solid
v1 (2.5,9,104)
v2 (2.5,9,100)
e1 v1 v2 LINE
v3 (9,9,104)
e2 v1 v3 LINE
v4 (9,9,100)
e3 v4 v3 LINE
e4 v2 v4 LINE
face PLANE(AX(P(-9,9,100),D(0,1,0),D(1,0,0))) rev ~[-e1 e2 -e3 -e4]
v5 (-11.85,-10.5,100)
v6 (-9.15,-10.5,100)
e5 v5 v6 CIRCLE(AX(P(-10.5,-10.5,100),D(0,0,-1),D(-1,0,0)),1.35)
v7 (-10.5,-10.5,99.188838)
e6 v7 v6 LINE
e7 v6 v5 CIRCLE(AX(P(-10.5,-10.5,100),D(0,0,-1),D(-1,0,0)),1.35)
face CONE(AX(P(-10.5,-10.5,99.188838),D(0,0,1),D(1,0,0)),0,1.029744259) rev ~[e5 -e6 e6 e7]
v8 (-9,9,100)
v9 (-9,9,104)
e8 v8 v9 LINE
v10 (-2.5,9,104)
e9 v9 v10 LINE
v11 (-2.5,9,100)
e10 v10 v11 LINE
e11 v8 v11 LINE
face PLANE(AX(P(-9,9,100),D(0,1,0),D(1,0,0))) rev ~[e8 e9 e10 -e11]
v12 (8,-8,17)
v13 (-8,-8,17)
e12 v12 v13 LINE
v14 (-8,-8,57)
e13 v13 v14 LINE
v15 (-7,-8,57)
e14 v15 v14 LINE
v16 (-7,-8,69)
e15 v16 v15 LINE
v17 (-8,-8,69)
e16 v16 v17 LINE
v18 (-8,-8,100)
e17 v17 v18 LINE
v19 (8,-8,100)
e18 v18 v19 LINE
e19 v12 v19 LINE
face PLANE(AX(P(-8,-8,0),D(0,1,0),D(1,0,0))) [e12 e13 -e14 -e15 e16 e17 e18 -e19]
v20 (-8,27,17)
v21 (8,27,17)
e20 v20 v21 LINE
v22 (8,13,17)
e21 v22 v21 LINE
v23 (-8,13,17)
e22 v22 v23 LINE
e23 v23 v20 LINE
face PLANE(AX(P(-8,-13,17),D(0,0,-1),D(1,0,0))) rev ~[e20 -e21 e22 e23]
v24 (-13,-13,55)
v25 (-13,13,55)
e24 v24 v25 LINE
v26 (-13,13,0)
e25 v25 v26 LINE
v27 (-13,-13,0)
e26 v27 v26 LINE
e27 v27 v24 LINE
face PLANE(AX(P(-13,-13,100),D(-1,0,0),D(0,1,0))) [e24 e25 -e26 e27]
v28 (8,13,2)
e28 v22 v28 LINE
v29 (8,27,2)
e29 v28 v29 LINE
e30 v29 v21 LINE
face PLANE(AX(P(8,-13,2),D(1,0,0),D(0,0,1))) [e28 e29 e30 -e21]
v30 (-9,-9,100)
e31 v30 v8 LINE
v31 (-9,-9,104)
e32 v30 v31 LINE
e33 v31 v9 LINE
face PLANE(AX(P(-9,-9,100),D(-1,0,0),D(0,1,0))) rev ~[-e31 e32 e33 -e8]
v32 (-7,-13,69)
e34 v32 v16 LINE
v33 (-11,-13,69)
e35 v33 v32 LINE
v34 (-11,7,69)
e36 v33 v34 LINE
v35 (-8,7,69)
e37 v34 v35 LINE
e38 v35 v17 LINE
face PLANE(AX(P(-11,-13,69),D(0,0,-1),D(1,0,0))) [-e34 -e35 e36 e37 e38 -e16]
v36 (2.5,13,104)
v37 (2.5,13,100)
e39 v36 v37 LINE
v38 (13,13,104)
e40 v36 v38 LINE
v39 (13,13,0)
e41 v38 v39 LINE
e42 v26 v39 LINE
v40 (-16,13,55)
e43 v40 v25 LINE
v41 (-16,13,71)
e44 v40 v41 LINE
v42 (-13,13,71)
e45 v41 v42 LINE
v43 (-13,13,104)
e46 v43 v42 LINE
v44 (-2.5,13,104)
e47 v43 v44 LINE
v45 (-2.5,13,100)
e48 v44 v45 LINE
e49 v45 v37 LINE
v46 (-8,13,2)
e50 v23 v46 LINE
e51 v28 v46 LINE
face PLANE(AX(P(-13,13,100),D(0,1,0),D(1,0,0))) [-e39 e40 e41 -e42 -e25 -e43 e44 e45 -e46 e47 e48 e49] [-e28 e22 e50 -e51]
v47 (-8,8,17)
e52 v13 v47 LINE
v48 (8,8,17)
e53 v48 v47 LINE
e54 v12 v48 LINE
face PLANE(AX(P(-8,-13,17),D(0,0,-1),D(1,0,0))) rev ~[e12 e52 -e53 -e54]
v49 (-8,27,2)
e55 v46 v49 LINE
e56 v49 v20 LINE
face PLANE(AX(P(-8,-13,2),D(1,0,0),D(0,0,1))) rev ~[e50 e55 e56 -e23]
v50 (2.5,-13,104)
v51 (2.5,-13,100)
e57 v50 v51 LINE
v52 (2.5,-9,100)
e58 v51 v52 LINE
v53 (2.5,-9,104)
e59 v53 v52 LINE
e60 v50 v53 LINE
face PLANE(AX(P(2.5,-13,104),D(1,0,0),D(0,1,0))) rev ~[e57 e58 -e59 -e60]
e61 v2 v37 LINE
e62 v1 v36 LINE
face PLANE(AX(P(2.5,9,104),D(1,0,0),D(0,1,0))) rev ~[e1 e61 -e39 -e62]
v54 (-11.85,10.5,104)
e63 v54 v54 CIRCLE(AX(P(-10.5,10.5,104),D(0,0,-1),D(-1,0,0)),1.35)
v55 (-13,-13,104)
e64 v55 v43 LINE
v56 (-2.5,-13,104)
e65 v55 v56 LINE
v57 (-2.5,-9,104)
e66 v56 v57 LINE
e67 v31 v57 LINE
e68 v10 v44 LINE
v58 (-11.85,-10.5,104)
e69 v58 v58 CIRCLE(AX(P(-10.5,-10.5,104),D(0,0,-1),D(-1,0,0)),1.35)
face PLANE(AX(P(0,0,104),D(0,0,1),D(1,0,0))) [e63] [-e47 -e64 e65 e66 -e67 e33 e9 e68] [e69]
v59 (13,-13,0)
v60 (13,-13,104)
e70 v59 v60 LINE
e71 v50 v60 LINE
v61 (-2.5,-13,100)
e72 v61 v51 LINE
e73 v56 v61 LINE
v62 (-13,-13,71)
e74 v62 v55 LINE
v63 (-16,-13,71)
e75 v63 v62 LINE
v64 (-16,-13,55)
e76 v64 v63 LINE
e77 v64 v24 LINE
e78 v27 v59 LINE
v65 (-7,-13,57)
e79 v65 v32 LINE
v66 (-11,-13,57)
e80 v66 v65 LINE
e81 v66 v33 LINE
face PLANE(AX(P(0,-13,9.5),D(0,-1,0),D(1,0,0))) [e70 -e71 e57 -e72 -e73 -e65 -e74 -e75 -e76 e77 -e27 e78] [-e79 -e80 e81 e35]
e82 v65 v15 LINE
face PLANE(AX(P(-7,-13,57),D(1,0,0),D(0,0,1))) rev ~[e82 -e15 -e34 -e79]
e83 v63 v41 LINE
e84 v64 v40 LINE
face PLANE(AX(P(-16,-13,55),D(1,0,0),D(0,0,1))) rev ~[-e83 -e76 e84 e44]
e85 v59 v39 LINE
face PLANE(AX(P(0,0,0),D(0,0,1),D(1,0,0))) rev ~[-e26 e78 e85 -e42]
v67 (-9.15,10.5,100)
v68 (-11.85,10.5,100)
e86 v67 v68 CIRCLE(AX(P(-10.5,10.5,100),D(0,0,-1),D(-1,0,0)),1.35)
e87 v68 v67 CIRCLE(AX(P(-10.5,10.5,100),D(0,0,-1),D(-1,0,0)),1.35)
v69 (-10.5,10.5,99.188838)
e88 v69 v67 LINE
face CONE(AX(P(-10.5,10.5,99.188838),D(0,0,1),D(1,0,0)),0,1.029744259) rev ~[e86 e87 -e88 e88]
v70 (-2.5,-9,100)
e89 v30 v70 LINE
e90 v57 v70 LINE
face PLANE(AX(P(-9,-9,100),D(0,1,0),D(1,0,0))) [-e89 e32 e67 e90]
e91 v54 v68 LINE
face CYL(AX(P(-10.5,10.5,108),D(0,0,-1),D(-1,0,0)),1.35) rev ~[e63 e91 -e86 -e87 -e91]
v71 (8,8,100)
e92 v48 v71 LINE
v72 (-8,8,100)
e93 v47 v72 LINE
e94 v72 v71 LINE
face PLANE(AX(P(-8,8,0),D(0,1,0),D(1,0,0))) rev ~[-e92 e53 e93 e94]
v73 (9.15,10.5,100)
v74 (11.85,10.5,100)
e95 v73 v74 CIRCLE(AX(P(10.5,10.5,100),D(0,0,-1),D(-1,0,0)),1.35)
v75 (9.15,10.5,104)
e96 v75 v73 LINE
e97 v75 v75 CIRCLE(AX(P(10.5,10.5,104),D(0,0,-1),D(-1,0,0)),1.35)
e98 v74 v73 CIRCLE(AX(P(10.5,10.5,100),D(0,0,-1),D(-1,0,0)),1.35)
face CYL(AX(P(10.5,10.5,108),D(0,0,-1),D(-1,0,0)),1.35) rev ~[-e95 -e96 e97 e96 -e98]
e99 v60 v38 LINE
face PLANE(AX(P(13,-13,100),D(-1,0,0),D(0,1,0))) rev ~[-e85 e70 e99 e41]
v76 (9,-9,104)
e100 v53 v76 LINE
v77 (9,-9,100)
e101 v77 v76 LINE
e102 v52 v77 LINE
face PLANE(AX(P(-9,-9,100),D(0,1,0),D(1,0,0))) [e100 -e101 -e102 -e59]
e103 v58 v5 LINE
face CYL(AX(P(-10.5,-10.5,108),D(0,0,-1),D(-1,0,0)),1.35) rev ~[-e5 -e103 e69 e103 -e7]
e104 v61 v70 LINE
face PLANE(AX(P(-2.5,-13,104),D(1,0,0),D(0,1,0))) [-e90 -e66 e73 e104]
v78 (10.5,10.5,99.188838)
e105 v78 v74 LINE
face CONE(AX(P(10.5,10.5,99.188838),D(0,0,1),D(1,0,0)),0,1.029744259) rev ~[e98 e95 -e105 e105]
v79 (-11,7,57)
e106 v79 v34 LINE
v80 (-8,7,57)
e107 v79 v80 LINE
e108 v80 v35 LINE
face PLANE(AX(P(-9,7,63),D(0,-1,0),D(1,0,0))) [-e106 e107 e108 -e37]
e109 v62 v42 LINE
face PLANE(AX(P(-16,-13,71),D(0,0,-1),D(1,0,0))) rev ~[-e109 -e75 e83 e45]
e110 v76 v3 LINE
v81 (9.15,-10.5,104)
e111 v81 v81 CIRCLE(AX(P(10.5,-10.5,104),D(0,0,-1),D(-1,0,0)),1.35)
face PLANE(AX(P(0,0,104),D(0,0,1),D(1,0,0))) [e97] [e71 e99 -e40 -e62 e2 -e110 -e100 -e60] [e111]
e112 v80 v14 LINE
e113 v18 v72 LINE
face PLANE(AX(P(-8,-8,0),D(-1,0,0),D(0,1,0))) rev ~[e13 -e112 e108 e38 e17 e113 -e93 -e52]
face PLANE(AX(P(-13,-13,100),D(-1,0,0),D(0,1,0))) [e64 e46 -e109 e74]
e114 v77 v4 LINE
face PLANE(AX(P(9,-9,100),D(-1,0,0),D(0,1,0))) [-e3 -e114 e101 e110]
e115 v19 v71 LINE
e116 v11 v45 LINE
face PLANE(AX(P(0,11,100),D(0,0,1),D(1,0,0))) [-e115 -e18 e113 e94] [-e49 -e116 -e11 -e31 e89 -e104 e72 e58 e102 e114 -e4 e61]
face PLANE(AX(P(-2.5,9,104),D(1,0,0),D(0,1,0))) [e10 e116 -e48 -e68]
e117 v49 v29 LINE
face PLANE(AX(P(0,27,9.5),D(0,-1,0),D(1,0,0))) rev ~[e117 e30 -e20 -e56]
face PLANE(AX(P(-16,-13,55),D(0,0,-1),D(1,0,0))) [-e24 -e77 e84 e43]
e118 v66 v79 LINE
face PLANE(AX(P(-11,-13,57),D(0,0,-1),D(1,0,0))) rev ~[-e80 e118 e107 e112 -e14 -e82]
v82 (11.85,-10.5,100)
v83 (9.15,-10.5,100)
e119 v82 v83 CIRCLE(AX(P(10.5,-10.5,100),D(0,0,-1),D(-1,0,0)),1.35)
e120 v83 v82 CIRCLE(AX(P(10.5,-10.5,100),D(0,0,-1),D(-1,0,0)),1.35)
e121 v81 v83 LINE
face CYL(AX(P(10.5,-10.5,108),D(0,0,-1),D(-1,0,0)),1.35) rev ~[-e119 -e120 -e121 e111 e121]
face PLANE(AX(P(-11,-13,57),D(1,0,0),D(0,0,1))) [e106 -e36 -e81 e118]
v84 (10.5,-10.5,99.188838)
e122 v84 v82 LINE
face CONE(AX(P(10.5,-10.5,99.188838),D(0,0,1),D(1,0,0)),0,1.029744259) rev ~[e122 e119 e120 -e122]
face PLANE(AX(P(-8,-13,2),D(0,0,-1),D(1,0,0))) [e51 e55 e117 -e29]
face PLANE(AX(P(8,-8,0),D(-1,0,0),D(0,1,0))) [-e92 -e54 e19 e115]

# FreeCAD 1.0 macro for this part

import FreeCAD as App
import Part
import Sketcher

V = App.Vector
Q = App.Units.Quantity

doc = App.newDocument("Part")
body = doc.addObject("PartDesign::Body", "Body")

sketch1 = body.newObject("Sketcher::SketchObject", "Sketch")
sketch1.AttachmentSupport = (doc.getObject("XY_Plane"), [""])
sketch1.MapMode = "FlatFace"
sketch1.addGeometry(Part.LineSegment(V(-13, 13, 0), V(-13, -13, 0)), False)
sketch1.addGeometry(Part.LineSegment(V(-13, -13, 0), V(13, -13, 0)), False)
sketch1.addGeometry(Part.LineSegment(V(13, -13, 0), V(13, 13, 0)), False)
sketch1.addGeometry(Part.LineSegment(V(13, 13, 0), V(-13, 13, 0)), False)
sketch1.addConstraint(Sketcher.Constraint("Coincident", 0, 2, 1, 1))
sketch1.addConstraint(Sketcher.Constraint("Coincident", 1, 2, 2, 1))
sketch1.addConstraint(Sketcher.Constraint("Coincident", 2, 2, 3, 1))
sketch1.addConstraint(Sketcher.Constraint("Coincident", 3, 2, 0, 1))
sketch1.addConstraint(Sketcher.Constraint("Vertical", 0))
sketch1.addConstraint(Sketcher.Constraint("Horizontal", 1))
sketch1.addConstraint(Sketcher.Constraint("Vertical", 2))
sketch1.addConstraint(Sketcher.Constraint("Horizontal", 3))
sketch1.addConstraint(Sketcher.Constraint("Symmetric", 0, 2, 2, 2, -1, 1))
sketch1.addConstraint(Sketcher.Constraint("Equal", 3, 0))
sketch1.addConstraint(Sketcher.Constraint("DistanceX", 1, 1, 1, 2, Q("26 mm")))
pad1 = body.newObject("PartDesign::Pad", "Pad")
pad1.Profile = sketch1
pad1.Length = 2

sketch2 = body.newObject("Sketcher::SketchObject", "Sketch001")
sketch2.AttachmentSupport = (doc.getObject("XY_Plane"), [""])
sketch2.MapMode = "FlatFace"
sketch2.addGeometry(Part.LineSegment(V(-13, 13, 0), V(-13, -13, 0)), False)
sketch2.addGeometry(Part.LineSegment(V(-13, -13, 0), V(13, -13, 0)), False)
sketch2.addGeometry(Part.LineSegment(V(13, -13, 0), V(13, 13, 0)), False)
sketch2.addGeometry(Part.LineSegment(V(13, 13, 0), V(-13, 13, 0)), False)
sketch2.addGeometry(Part.LineSegment(V(8, -8, 0), V(-8, -8, 0)), False)
sketch2.addGeometry(Part.LineSegment(V(-8, -8, 0), V(-8, 8, 0)), False)
sketch2.addGeometry(Part.LineSegment(V(-8, 8, 0), V(8, 8, 0)), False)
sketch2.addGeometry(Part.LineSegment(V(8, 8, 0), V(8, -8, 0)), False)
sketch2.addConstraint(Sketcher.Constraint("Coincident", 0, 2, 1, 1))
sketch2.addConstraint(Sketcher.Constraint("Coincident", 1, 2, 2, 1))
sketch2.addConstraint(Sketcher.Constraint("Coincident", 2, 2, 3, 1))
sketch2.addConstraint(Sketcher.Constraint("Coincident", 3, 2, 0, 1))
sketch2.addConstraint(Sketcher.Constraint("Coincident", 4, 2, 5, 1))
sketch2.addConstraint(Sketcher.Constraint("Coincident", 5, 2, 6, 1))
sketch2.addConstraint(Sketcher.Constraint("Coincident", 6, 2, 7, 1))
sketch2.addConstraint(Sketcher.Constraint("Coincident", 7, 2, 4, 1))
sketch2.addConstraint(Sketcher.Constraint("Vertical", 0))
sketch2.addConstraint(Sketcher.Constraint("Horizontal", 1))
sketch2.addConstraint(Sketcher.Constraint("Vertical", 2))
sketch2.addConstraint(Sketcher.Constraint("Horizontal", 3))
sketch2.addConstraint(Sketcher.Constraint("Horizontal", 4))
sketch2.addConstraint(Sketcher.Constraint("Vertical", 5))
sketch2.addConstraint(Sketcher.Constraint("Horizontal", 6))
sketch2.addConstraint(Sketcher.Constraint("Vertical", 7))
sketch2.addConstraint(Sketcher.Constraint("Symmetric", 0, 2, 2, 2, -1, 1))
sketch2.addConstraint(Sketcher.Constraint("Symmetric", 4, 2, 6, 2, -1, 1))
sketch2.addConstraint(Sketcher.Constraint("Equal", 3, 0))
sketch2.addConstraint(Sketcher.Constraint("Equal", 6, 5))
sketch2.addConstraint(Sketcher.Constraint("DistanceX", 1, 1, 1, 2, Q("26 mm")))
sketch2.addConstraint(Sketcher.Constraint("DistanceX", 4, 2, 4, 1, Q("16 mm")))
pad2 = body.newObject("PartDesign::Pad", "Pad001")
pad2.Profile = sketch2
pad2.Length = 100

sketch3 = body.newObject("Sketcher::SketchObject", "Sketch002")
sketch3.AttachmentSupport = (doc.getObject("XY_Plane"), [""])
sketch3.MapMode = "FlatFace"
sketch3.AttachmentOffset = App.Placement(V(0, 0, 100), App.Rotation())
sketch3.addGeometry(Part.LineSegment(V(-13, 13, 0), V(-13, -13, 0)), False)
sketch3.addGeometry(Part.LineSegment(V(-13, -13, 0), V(13, -13, 0)), False)
sketch3.addGeometry(Part.LineSegment(V(13, -13, 0), V(13, 13, 0)), False)
sketch3.addGeometry(Part.LineSegment(V(13, 13, 0), V(-13, 13, 0)), False)
sketch3.addGeometry(Part.LineSegment(V(9, -9, 0), V(-9, -9, 0)), False)
sketch3.addGeometry(Part.LineSegment(V(-9, -9, 0), V(-9, 9, 0)), False)
sketch3.addGeometry(Part.LineSegment(V(-9, 9, 0), V(9, 9, 0)), False)
sketch3.addGeometry(Part.LineSegment(V(9, 9, 0), V(9, -9, 0)), False)
sketch3.addConstraint(Sketcher.Constraint("Coincident", 0, 2, 1, 1))
sketch3.addConstraint(Sketcher.Constraint("Coincident", 1, 2, 2, 1))
sketch3.addConstraint(Sketcher.Constraint("Coincident", 2, 2, 3, 1))
sketch3.addConstraint(Sketcher.Constraint("Coincident", 3, 2, 0, 1))
sketch3.addConstraint(Sketcher.Constraint("Coincident", 4, 2, 5, 1))
sketch3.addConstraint(Sketcher.Constraint("Coincident", 5, 2, 6, 1))
sketch3.addConstraint(Sketcher.Constraint("Coincident", 6, 2, 7, 1))
sketch3.addConstraint(Sketcher.Constraint("Coincident", 7, 2, 4, 1))
sketch3.addConstraint(Sketcher.Constraint("Vertical", 0))
sketch3.addConstraint(Sketcher.Constraint("Horizontal", 1))
sketch3.addConstraint(Sketcher.Constraint("Vertical", 2))
sketch3.addConstraint(Sketcher.Constraint("Horizontal", 3))
sketch3.addConstraint(Sketcher.Constraint("Horizontal", 4))
sketch3.addConstraint(Sketcher.Constraint("Vertical", 5))
sketch3.addConstraint(Sketcher.Constraint("Horizontal", 6))
sketch3.addConstraint(Sketcher.Constraint("Vertical", 7))
sketch3.addConstraint(Sketcher.Constraint("Symmetric", 0, 2, 2, 2, -1, 1))
sketch3.addConstraint(Sketcher.Constraint("Symmetric", 4, 2, 6, 2, -1, 1))
sketch3.addConstraint(Sketcher.Constraint("Equal", 3, 0))
sketch3.addConstraint(Sketcher.Constraint("Equal", 6, 5))
sketch3.addConstraint(Sketcher.Constraint("DistanceX", 1, 1, 1, 2, Q("26 mm")))
sketch3.addConstraint(Sketcher.Constraint("DistanceX", 4, 2, 4, 1, Q("18 mm")))
pad3 = body.newObject("PartDesign::Pad", "Pad002")
pad3.Profile = sketch3
pad3.Length = 4

sketch4 = body.newObject("Sketcher::SketchObject", "Sketch003")
sketch4.AttachmentSupport = (doc.getObject("XY_Plane"), [""])
sketch4.MapMode = "FlatFace"
sketch4.AttachmentOffset = App.Placement(V(0, 0, 104), App.Rotation())
sketch4.addGeometry(Part.LineSegment(V(-2.5, -9, 0), V(-2.5, -13, 0)), False)
sketch4.addGeometry(Part.LineSegment(V(-2.5, -13, 0), V(2.5, -13, 0)), False)
sketch4.addGeometry(Part.LineSegment(V(2.5, -13, 0), V(2.5, -9, 0)), False)
sketch4.addGeometry(Part.LineSegment(V(2.5, -9, 0), V(-2.5, -9, 0)), False)
sketch4.addGeometry(Part.LineSegment(V(-2.5, 13, 0), V(-2.5, 9, 0)), False)
sketch4.addGeometry(Part.LineSegment(V(-2.5, 9, 0), V(2.5, 9, 0)), False)
sketch4.addGeometry(Part.LineSegment(V(2.5, 9, 0), V(2.5, 13, 0)), False)
sketch4.addGeometry(Part.LineSegment(V(2.5, 13, 0), V(-2.5, 13, 0)), False)
sketch4.addConstraint(Sketcher.Constraint("Coincident", 0, 2, 1, 1))
sketch4.addConstraint(Sketcher.Constraint("Coincident", 1, 2, 2, 1))
sketch4.addConstraint(Sketcher.Constraint("Coincident", 2, 2, 3, 1))
sketch4.addConstraint(Sketcher.Constraint("Coincident", 3, 2, 0, 1))
sketch4.addConstraint(Sketcher.Constraint("Coincident", 4, 2, 5, 1))
sketch4.addConstraint(Sketcher.Constraint("Coincident", 5, 2, 6, 1))
sketch4.addConstraint(Sketcher.Constraint("Coincident", 6, 2, 7, 1))
sketch4.addConstraint(Sketcher.Constraint("Coincident", 7, 2, 4, 1))
sketch4.addConstraint(Sketcher.Constraint("Vertical", 0))
sketch4.addConstraint(Sketcher.Constraint("Horizontal", 1))
sketch4.addConstraint(Sketcher.Constraint("Vertical", 2))
sketch4.addConstraint(Sketcher.Constraint("Horizontal", 3))
sketch4.addConstraint(Sketcher.Constraint("Vertical", 4))
sketch4.addConstraint(Sketcher.Constraint("Horizontal", 5))
sketch4.addConstraint(Sketcher.Constraint("Vertical", 6))
sketch4.addConstraint(Sketcher.Constraint("Horizontal", 7))
sketch4.addConstraint(Sketcher.Constraint("Symmetric", 2, 2, 4, 2, -1, 1))
sketch4.addConstraint(Sketcher.Constraint("Symmetric", 0, 2, 6, 2, -1, 1))
sketch4.addConstraint(Sketcher.Constraint("Vertical", 3, 2, 4, 2))
sketch4.addConstraint(Sketcher.Constraint("DistanceX", 1, 1, 1, 2, Q("5 mm")))
sketch4.addConstraint(Sketcher.Constraint("DistanceY", 0, 2, 0, 1, Q("4 mm")))
sketch4.addConstraint(Sketcher.Constraint("DistanceY", 0, 2, -1, 1, Q("13 mm")))
pocket1 = body.newObject("PartDesign::Pocket", "Pocket")
pocket1.Profile = sketch4
pocket1.Length = 4

sketch5 = body.newObject("Sketcher::SketchObject", "Sketch004")
sketch5.AttachmentSupport = (doc.getObject("XY_Plane"), [""])
sketch5.MapMode = "FlatFace"
sketch5.AttachmentOffset = App.Placement(V(0, 0, 104), App.Rotation())
sketch5.addGeometry(Part.Circle(V(-10.5, 10.5, 0), V(0, 0, 1), 1.4), False)
sketch5.addGeometry(Part.Circle(V(10.5, 10.5, 0), V(0, 0, 1), 1.4), False)
sketch5.addGeometry(Part.Circle(V(-10.5, -10.5, 0), V(0, 0, 1), 1.4), False)
sketch5.addGeometry(Part.Circle(V(10.5, -10.5, 0), V(0, 0, 1), 1.4), False)
sketch5.addConstraint(Sketcher.Constraint("Equal", 0, 1))
sketch5.addConstraint(Sketcher.Constraint("Equal", 1, 2))
sketch5.addConstraint(Sketcher.Constraint("Equal", 2, 3))
sketch5.addConstraint(Sketcher.Constraint("Symmetric", 1, 3, 2, 3, -1, 1))
sketch5.addConstraint(Sketcher.Constraint("Symmetric", 0, 3, 3, 3, -1, 1))
sketch5.addConstraint(Sketcher.Constraint("Symmetric", 0, 3, 1, 3, -2))
sketch5.addConstraint(Sketcher.Constraint("Diameter", 0, Q("2.7 mm")))
sketch5.addConstraint(Sketcher.Constraint("DistanceX", 0, 3, 1, 3, Q("21 mm")))
sketch5.addConstraint(Sketcher.Constraint("DistanceY", 2, 3, 0, 3, Q("21 mm")))
doc.recompute()
hole = body.newObject("PartDesign::Hole", "Hole")
hole.Profile = sketch5
hole.ThreadType = "None"
hole.Diameter = 2.7
hole.DepthType = "Dimension"
hole.Depth = 4
hole.DrillPoint = "Angled"
hole.DrillPointAngle = 118

sketch6 = body.newObject("Sketcher::SketchObject", "Sketch005")
sketch6.AttachmentSupport = (doc.getObject("XZ_Plane"), [""])
sketch6.MapMode = "FlatFace"
sketch6.AttachmentOffset = App.Placement(V(0, 0, 13), App.Rotation())
sketch6.addGeometry(Part.LineSegment(V(-16, 71, 0), V(-16, 55, 0)), False)
sketch6.addGeometry(Part.LineSegment(V(-16, 55, 0), V(-13, 55, 0)), False)
sketch6.addGeometry(Part.LineSegment(V(-13, 55, 0), V(-13, 71, 0)), False)
sketch6.addGeometry(Part.LineSegment(V(-13, 71, 0), V(-16, 71, 0)), False)
sketch6.addConstraint(Sketcher.Constraint("Coincident", 0, 2, 1, 1))
sketch6.addConstraint(Sketcher.Constraint("Coincident", 1, 2, 2, 1))
sketch6.addConstraint(Sketcher.Constraint("Coincident", 2, 2, 3, 1))
sketch6.addConstraint(Sketcher.Constraint("Coincident", 3, 2, 0, 1))
sketch6.addConstraint(Sketcher.Constraint("Vertical", 0))
sketch6.addConstraint(Sketcher.Constraint("Horizontal", 1))
sketch6.addConstraint(Sketcher.Constraint("Vertical", 2))
sketch6.addConstraint(Sketcher.Constraint("Horizontal", 3))
sketch6.addConstraint(Sketcher.Constraint("DistanceX", 1, 1, 1, 2, Q("3 mm")))
sketch6.addConstraint(Sketcher.Constraint("DistanceY", 0, 2, 0, 1, Q("16 mm")))
sketch6.addConstraint(Sketcher.Constraint("DistanceX", 0, 2, -1, 1, Q("16 mm")))
sketch6.addConstraint(Sketcher.Constraint("DistanceY", -1, 1, 0, 2, Q("55 mm")))
pad4 = body.newObject("PartDesign::Pad", "Pad003")
pad4.Profile = sketch6
pad4.Length = 26
pad4.Reversed = True

sketch7 = body.newObject("Sketcher::SketchObject", "Sketch006")
sketch7.AttachmentSupport = (doc.getObject("XZ_Plane"), [""])
sketch7.MapMode = "FlatFace"
sketch7.AttachmentOffset = App.Placement(V(0, 0, 13), App.Rotation())
sketch7.addGeometry(Part.LineSegment(V(-11, 69, 0), V(-11, 57, 0)), False)
sketch7.addGeometry(Part.LineSegment(V(-11, 57, 0), V(-7, 57, 0)), False)
sketch7.addGeometry(Part.LineSegment(V(-7, 57, 0), V(-7, 69, 0)), False)
sketch7.addGeometry(Part.LineSegment(V(-7, 69, 0), V(-11, 69, 0)), False)
sketch7.addConstraint(Sketcher.Constraint("Coincident", 0, 2, 1, 1))
sketch7.addConstraint(Sketcher.Constraint("Coincident", 1, 2, 2, 1))
sketch7.addConstraint(Sketcher.Constraint("Coincident", 2, 2, 3, 1))
sketch7.addConstraint(Sketcher.Constraint("Coincident", 3, 2, 0, 1))
sketch7.addConstraint(Sketcher.Constraint("Vertical", 0))
sketch7.addConstraint(Sketcher.Constraint("Horizontal", 1))
sketch7.addConstraint(Sketcher.Constraint("Vertical", 2))
sketch7.addConstraint(Sketcher.Constraint("Horizontal", 3))
sketch7.addConstraint(Sketcher.Constraint("DistanceX", 1, 1, 1, 2, Q("4 mm")))
sketch7.addConstraint(Sketcher.Constraint("DistanceY", 0, 2, 0, 1, Q("12 mm")))
sketch7.addConstraint(Sketcher.Constraint("DistanceX", 0, 2, -1, 1, Q("11 mm")))
sketch7.addConstraint(Sketcher.Constraint("DistanceY", -1, 1, 0, 2, Q("57 mm")))
pocket2 = body.newObject("PartDesign::Pocket", "Pocket001")
pocket2.Profile = sketch7
pocket2.Length = 20

sketch8 = body.newObject("Sketcher::SketchObject", "Sketch007")
sketch8.AttachmentSupport = (doc.getObject("XZ_Plane"), [""])
sketch8.MapMode = "FlatFace"
sketch8.AttachmentOffset = App.Placement(V(0, 0, 13), App.Rotation())
sketch8.addGeometry(Part.LineSegment(V(-8, 17, 0), V(-8, 2, 0)), False)
sketch8.addGeometry(Part.LineSegment(V(-8, 2, 0), V(8, 2, 0)), False)
sketch8.addGeometry(Part.LineSegment(V(8, 2, 0), V(8, 17, 0)), False)
sketch8.addGeometry(Part.LineSegment(V(8, 17, 0), V(-8, 17, 0)), False)
sketch8.addConstraint(Sketcher.Constraint("Coincident", 0, 2, 1, 1))
sketch8.addConstraint(Sketcher.Constraint("Coincident", 1, 2, 2, 1))
sketch8.addConstraint(Sketcher.Constraint("Coincident", 2, 2, 3, 1))
sketch8.addConstraint(Sketcher.Constraint("Coincident", 3, 2, 0, 1))
sketch8.addConstraint(Sketcher.Constraint("Vertical", 0))
sketch8.addConstraint(Sketcher.Constraint("Horizontal", 1))
sketch8.addConstraint(Sketcher.Constraint("Vertical", 2))
sketch8.addConstraint(Sketcher.Constraint("Horizontal", 3))
sketch8.addConstraint(Sketcher.Constraint("DistanceX", 1, 1, 1, 2, Q("16 mm")))
sketch8.addConstraint(Sketcher.Constraint("DistanceY", 0, 2, 0, 1, Q("15 mm")))
sketch8.addConstraint(Sketcher.Constraint("DistanceX", 0, 2, -1, 1, Q("8 mm")))
sketch8.addConstraint(Sketcher.Constraint("DistanceY", -1, 1, 0, 2, Q("2 mm")))
pad5 = body.newObject("PartDesign::Pad", "Pad004")
pad5.Profile = sketch8
pad5.Length = 40
pad5.Reversed = True

doc.recompute()
